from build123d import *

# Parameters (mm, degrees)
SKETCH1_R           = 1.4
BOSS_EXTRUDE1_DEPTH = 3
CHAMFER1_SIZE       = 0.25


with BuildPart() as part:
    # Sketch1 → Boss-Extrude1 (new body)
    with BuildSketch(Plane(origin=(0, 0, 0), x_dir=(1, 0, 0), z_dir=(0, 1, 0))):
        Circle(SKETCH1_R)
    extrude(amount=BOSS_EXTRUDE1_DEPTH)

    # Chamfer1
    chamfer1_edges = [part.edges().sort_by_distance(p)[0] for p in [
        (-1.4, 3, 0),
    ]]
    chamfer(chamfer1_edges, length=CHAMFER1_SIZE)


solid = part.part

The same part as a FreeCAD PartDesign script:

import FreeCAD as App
import Part
import Sketcher
from FreeCAD import Vector
Q = App.Units.Quantity


def edges_at(feature, points):
    """Names of the edges that pass closest to the given points."""
    edges = feature.Shape.Edges
    near = lambda p: min(range(len(edges)), key=lambda i: edges[i].distToShape(Part.Vertex(*p))[0])
    return sorted({f"Edge{near(p) + 1}" for p in points})

doc = App.newDocument("Part")
body = doc.addObject("PartDesign::Body", "Body")

# Sketch on XZ plane
sketch1 = doc.addObject("Sketcher::SketchObject", "Sketch")
body.addObject(sketch1)
sketch1.AttachmentSupport = (doc.XZ_Plane, [""])
sketch1.MapMode = "FlatFace"
sketch1.addGeometry(Part.Circle(Vector(0, 0, 0), Vector(0, 0, 1), 1.4), False)
sketch1.addConstraint(Sketcher.Constraint("Coincident", 0, 3, -1, 1))
sketch1.addConstraint(Sketcher.Constraint("Diameter", 0, Q("2.8 mm")))
pad1 = doc.addObject("PartDesign::Pad", "Pad")
body.addObject(pad1)
pad1.Profile = sketch1
pad1.Length = 3
pad1.Reversed = True
doc.recompute()

chamfer = doc.addObject("PartDesign::Chamfer", "Chamfer")
body.addObject(chamfer)
chamfer.Base = (pad1, edges_at(pad1, [(-1.4, 3, 0)]))
chamfer.Size = 0.25

doc.recompute()
